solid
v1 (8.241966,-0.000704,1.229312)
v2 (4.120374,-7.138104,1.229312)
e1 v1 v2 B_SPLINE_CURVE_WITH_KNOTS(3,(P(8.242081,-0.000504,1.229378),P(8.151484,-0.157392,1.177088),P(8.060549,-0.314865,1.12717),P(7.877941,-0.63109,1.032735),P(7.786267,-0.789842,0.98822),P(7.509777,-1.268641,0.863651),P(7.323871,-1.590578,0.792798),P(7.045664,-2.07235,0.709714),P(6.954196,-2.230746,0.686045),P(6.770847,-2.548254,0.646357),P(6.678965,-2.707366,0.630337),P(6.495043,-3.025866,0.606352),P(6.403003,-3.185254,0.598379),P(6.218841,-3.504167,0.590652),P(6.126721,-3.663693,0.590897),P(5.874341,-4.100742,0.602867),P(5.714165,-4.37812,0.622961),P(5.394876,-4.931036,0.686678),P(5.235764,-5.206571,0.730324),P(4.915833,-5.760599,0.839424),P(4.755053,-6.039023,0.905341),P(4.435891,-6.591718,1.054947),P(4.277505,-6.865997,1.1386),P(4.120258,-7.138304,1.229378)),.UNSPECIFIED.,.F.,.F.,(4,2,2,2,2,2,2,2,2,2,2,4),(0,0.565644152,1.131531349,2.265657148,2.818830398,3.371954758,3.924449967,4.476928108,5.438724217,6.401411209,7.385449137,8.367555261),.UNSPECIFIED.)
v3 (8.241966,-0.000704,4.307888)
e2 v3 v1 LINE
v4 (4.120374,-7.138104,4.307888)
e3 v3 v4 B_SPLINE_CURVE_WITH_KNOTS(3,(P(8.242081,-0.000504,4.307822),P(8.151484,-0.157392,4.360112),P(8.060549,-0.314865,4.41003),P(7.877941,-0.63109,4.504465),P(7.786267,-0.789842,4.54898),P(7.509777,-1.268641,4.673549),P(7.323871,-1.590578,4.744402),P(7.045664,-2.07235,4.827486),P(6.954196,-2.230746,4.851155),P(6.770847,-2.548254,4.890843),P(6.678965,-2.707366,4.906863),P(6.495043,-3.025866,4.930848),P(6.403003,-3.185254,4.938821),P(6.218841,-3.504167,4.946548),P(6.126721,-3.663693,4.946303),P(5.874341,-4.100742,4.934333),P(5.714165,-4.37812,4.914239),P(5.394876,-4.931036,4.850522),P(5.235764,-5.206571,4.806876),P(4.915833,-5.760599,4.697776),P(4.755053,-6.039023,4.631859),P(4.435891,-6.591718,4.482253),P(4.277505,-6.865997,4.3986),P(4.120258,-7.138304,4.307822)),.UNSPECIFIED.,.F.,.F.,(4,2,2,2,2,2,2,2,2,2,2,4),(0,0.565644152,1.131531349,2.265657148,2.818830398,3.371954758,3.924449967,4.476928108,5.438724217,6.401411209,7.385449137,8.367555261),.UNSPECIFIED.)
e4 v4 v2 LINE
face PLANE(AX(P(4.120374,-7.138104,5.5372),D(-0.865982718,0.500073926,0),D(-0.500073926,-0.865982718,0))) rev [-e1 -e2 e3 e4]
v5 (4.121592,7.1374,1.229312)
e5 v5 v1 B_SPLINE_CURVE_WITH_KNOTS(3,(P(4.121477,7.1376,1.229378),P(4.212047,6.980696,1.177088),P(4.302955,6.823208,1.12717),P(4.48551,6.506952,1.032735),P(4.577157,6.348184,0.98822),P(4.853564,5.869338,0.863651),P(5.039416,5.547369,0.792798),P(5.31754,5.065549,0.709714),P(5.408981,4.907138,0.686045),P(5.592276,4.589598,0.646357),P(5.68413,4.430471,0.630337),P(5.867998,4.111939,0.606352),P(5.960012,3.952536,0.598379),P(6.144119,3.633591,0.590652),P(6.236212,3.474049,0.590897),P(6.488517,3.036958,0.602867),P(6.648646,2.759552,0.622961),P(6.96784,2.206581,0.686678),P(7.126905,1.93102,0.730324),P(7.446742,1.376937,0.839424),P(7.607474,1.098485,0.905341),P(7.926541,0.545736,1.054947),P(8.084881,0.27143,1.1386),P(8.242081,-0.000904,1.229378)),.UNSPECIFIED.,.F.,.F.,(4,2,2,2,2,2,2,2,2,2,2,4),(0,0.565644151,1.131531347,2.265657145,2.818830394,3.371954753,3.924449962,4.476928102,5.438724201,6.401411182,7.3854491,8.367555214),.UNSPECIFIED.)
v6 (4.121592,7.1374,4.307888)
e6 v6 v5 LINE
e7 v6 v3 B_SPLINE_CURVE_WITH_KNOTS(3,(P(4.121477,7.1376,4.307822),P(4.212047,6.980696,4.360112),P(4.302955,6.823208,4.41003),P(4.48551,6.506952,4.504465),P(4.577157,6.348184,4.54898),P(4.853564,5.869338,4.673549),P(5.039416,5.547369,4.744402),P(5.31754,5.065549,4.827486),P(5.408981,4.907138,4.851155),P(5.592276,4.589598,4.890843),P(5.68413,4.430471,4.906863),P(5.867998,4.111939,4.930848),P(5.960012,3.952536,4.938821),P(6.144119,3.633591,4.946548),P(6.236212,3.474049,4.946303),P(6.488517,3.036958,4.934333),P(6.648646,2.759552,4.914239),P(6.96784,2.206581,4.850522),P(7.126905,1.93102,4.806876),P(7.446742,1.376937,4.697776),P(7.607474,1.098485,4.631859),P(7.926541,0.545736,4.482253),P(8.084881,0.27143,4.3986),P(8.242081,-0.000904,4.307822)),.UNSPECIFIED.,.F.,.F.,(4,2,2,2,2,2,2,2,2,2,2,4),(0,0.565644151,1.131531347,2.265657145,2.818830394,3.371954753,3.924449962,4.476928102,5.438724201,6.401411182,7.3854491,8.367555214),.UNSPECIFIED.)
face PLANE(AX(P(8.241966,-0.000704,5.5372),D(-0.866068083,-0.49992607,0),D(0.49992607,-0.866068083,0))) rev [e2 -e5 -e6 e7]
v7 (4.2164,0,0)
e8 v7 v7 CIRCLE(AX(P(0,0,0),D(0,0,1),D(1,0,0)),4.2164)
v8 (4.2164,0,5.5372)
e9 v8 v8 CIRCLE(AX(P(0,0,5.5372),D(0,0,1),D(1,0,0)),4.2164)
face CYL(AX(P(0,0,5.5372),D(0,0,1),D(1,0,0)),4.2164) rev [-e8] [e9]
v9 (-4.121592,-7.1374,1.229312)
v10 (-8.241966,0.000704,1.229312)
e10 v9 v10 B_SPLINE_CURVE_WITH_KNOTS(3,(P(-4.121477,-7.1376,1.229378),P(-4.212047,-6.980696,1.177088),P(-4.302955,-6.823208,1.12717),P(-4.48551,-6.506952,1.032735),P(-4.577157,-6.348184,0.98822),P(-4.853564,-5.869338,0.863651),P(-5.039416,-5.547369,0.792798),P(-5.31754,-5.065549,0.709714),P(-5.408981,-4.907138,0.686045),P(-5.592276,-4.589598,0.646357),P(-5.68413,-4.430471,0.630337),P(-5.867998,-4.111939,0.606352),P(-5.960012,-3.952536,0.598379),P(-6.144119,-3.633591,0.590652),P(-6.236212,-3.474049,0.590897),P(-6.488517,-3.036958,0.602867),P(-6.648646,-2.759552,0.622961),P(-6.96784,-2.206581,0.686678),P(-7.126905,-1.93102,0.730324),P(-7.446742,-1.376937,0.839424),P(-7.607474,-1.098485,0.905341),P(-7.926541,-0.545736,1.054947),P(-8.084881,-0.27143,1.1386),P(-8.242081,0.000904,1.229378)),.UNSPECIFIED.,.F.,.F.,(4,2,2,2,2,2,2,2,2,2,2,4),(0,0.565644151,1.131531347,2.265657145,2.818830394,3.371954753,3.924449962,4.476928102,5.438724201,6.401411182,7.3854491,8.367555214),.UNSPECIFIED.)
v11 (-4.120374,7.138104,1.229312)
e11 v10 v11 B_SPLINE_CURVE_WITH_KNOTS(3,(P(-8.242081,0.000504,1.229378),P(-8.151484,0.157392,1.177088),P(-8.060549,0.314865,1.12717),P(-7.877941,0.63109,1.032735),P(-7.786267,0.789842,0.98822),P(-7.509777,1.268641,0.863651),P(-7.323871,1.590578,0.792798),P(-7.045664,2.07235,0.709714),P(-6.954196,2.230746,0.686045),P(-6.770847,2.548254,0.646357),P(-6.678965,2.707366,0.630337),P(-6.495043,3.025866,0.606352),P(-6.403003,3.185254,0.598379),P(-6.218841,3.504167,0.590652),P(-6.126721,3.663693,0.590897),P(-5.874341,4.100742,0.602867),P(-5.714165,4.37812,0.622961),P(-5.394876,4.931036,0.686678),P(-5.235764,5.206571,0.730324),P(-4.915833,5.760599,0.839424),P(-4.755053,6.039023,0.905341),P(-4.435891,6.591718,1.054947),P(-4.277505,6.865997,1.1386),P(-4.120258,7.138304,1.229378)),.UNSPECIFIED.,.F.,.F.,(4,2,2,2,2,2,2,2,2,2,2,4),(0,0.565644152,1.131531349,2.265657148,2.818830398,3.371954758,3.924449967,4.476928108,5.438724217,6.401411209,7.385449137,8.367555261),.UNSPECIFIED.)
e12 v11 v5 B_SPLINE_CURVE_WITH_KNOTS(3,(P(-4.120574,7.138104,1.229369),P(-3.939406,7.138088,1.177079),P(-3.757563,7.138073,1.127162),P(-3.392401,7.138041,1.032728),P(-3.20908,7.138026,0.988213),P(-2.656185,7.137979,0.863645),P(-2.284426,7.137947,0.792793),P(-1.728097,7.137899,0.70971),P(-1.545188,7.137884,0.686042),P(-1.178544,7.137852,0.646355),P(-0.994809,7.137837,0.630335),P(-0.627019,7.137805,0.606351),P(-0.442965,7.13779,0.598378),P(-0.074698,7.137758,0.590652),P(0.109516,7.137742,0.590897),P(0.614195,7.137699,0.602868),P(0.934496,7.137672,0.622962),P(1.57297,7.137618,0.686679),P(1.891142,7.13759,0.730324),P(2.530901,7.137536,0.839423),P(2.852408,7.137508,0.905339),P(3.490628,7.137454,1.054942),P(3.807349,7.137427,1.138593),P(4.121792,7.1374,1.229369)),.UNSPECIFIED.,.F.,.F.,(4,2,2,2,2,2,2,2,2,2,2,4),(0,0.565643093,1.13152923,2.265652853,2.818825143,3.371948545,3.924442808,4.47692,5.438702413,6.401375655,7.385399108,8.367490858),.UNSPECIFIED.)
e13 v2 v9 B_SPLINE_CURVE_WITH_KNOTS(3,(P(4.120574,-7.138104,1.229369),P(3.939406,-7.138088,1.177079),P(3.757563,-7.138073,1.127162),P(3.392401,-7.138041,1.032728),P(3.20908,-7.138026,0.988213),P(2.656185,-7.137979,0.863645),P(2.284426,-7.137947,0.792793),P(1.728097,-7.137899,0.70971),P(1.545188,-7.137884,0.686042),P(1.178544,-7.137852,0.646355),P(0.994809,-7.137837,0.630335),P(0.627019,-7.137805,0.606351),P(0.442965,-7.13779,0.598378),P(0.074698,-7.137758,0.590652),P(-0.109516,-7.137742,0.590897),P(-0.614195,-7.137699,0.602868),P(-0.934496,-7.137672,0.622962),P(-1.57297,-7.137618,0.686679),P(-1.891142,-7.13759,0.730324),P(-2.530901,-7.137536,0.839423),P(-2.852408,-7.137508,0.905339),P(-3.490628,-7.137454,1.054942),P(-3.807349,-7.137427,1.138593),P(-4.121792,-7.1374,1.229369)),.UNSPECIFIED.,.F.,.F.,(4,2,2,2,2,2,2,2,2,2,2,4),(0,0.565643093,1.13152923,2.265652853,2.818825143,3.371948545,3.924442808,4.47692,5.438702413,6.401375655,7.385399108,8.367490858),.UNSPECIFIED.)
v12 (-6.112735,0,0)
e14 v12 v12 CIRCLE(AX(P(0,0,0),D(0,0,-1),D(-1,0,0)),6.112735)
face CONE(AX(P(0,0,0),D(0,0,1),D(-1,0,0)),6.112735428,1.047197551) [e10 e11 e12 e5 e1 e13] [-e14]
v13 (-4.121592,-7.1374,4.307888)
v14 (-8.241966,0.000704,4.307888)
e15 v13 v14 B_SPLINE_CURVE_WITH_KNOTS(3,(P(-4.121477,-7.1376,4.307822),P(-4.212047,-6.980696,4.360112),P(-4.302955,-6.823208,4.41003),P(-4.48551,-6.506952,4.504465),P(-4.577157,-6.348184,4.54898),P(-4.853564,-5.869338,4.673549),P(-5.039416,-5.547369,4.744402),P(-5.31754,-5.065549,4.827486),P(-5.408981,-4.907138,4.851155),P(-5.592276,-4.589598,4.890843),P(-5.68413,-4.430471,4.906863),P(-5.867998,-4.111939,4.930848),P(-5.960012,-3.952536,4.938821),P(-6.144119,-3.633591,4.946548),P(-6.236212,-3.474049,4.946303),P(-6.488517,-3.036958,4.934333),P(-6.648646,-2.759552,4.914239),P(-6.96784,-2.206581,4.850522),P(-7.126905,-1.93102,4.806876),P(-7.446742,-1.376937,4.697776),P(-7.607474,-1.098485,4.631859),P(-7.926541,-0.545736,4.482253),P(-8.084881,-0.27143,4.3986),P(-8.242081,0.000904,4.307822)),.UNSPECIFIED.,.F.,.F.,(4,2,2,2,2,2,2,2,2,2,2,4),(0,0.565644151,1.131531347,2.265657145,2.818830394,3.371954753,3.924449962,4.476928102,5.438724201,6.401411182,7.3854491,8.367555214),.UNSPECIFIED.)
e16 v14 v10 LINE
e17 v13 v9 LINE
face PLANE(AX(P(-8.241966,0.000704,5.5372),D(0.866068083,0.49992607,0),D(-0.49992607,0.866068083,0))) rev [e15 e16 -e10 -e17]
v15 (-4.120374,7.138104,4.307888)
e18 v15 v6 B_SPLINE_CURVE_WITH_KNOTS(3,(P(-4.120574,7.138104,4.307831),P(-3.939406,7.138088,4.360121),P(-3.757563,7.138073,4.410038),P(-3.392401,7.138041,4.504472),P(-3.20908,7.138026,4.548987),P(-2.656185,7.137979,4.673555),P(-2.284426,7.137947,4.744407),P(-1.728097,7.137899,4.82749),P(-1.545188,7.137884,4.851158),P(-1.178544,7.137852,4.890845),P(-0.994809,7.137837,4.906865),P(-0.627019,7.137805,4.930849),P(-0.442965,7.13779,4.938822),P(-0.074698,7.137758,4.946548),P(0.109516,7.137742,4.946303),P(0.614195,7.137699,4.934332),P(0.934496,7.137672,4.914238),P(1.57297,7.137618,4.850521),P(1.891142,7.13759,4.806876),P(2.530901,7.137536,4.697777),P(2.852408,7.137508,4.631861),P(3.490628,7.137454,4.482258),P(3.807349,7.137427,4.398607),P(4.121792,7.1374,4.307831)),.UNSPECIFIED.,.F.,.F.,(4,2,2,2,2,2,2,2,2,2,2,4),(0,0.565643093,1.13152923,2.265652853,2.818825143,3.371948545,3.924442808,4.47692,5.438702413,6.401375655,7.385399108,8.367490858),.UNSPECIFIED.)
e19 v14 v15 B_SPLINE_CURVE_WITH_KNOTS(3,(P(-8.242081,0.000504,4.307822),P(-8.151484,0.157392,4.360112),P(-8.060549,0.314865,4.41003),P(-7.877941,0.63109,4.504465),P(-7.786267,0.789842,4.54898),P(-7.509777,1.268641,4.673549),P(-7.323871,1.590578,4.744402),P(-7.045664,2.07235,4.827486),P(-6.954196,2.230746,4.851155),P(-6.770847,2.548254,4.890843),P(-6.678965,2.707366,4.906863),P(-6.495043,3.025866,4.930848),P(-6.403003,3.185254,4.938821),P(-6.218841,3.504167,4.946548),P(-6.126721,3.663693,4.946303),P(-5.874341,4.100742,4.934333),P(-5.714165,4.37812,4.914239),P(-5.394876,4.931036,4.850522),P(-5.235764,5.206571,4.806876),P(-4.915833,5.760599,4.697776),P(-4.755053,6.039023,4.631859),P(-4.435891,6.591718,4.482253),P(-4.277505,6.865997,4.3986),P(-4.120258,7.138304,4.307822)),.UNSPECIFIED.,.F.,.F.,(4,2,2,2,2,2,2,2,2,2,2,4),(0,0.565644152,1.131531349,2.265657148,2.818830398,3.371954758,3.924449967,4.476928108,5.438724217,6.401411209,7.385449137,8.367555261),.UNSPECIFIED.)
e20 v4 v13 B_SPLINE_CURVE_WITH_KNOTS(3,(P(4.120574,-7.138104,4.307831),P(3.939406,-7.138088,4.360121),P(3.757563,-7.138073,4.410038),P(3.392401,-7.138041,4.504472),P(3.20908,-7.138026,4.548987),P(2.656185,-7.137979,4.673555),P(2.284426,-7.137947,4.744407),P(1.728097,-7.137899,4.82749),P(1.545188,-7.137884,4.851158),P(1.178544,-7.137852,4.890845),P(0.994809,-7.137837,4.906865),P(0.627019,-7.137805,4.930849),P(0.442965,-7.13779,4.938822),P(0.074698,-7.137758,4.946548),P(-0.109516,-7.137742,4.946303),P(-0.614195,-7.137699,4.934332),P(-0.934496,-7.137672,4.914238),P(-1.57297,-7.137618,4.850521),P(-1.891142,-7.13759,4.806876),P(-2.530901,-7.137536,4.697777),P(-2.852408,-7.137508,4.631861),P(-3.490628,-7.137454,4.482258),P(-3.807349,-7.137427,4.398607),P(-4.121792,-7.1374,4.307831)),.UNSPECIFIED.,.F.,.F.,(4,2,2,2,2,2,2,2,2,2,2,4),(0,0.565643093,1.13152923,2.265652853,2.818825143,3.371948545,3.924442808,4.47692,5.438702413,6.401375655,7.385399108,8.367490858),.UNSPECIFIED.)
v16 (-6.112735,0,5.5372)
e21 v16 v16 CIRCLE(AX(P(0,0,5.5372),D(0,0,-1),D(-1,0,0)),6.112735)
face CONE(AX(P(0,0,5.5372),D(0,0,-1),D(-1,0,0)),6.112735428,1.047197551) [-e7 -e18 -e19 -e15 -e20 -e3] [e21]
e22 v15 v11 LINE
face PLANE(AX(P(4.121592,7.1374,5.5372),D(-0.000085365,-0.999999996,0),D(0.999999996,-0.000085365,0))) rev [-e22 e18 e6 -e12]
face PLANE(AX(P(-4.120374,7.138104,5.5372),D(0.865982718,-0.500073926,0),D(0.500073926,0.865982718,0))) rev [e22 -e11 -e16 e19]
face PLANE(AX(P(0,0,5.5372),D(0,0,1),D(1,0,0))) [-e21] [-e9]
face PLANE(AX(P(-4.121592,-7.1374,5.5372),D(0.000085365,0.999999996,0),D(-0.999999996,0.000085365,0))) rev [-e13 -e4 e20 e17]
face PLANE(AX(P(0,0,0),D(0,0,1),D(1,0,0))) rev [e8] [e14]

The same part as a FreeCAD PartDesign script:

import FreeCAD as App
import Part
import Sketcher
Q = App.Units.Quantity


def faces_at(feature, points):
    """Names of the faces that lie closest to the given points."""
    faces = feature.Shape.Faces
    near = lambda p: min(range(len(faces)), key=lambda i: faces[i].distToShape(Part.Vertex(*p))[0])
    return sorted({f"Face{near(p) + 1}" for p in points})


def add_polygon(sketch, points):
    """Adds a closed chain of lines whose ends are joined by coincident constraints."""
    first, n = sketch.GeometryCount, len(points)
    for a, b in zip(points, points[1:] + points[:1]):
        sketch.addGeometry(Part.LineSegment(App.Vector(*a, 0), App.Vector(*b, 0)), False)
    for i in range(n):
        sketch.addConstraint(Sketcher.Constraint("Coincident", first + i, 2, first + (i + 1) % n, 1))

doc = App.newDocument("Part")
params = doc.addObject("Spreadsheet::Sheet", "Params")
for row, (alias, value) in enumerate([
    ("pad1_length", "0.218 in"),
    ("pad2_length", "13.228782 mm"),
    ("draft_angle", "60 deg"),
    ("pad3_length", "13.228782 mm"),
    ("draft2_angle", "60 deg"),
    ("sketch4_diameter", "0.332 in"),
    ("hole_diameter", "0.332 in"),
    ("hole_depth", "0.96 in"),
], start=1):
    params.set(f"A{row}", alias)
    params.set(f"B{row}", "=" + value)
    params.setAlias(f"B{row}", alias)

body = doc.addObject("PartDesign::Body", "Body")

# Sketch on XY plane
sketch1 = body.newObject("Sketcher::SketchObject", "Sketch")
sketch1.AttachmentSupport = (doc.getObject("XY_Plane"), [""])
sketch1.MapMode = "FlatFace"
add_polygon(sketch1, [(4, 7), (-4, 7), (-8, 0), (-4, -7), (4, -7), (8, 0)])  # lines 0-5
sketch1.addConstraint([
    Sketcher.Constraint("Symmetric", 0, 2, 3, 2, -1, 1),
    Sketcher.Constraint("Symmetric", 1, 2, 4, 2, -1, 1),
    Sketcher.Constraint("Symmetric", 2, 2, 5, 2, -1, 1),
    Sketcher.Constraint("Equal", 0, 1),
    Sketcher.Constraint("Equal", 1, 2),
    Sketcher.Constraint("DistanceY", 2, 2, -1, 1, Q("0.281 in")),
    Sketcher.Constraint("DistanceY", 1, 2, 0, 2, Q("0.281 in")),
    Sketcher.Constraint("DistanceX", 2, 2, 0, 2, 0.001219),
    Sketcher.Constraint("DistanceX", 1, 2, 3, 2, 12.362339),
])
pad1 = body.newObject("PartDesign::Pad", "Pad")
pad1.Profile = sketch1
pad1.setExpression("Length", "Params.pad1_length")
body2 = doc.addObject("PartDesign::Body", "Body001")

# Sketch on XY plane
sketch2 = body2.newObject("Sketcher::SketchObject", "Sketch001")
sketch2.AttachmentSupport = (doc.getObject("XY_Plane001"), [""])
sketch2.MapMode = "FlatFace"
add_polygon(sketch2, [(34, 33), (34, -33), (-34, -33), (-34, 33)])  # lines 0-3
sketch2.addGeometry(Part.Circle(App.Vector(0, 0, 0), App.Vector(0, 0, 1), 6), False)  # 4
sketch2.addConstraint([
    Sketcher.Constraint("Vertical", 0),
    Sketcher.Constraint("Horizontal", 1),
    Sketcher.Constraint("Vertical", 2),
    Sketcher.Constraint("Horizontal", 3),
    Sketcher.Constraint("Coincident", 4, 3, -1, 1),
    Sketcher.Constraint("Symmetric", 0, 2, 2, 2, -1, 1),
    Sketcher.Constraint("Diameter", 4, 12.225471),
    Sketcher.Constraint("DistanceX", 1, 2, 1, 1, 68.81),
    Sketcher.Constraint("DistanceY", 0, 2, 0, 1, 66.602),
])
pad2 = body2.newObject("PartDesign::Pad", "Pad001")
pad2.Profile = sketch2
pad2.setExpression("Length", "Params.pad2_length")
doc.recompute()

draft = body2.newObject("PartDesign::Draft", "Draft")
draft.Base = (pad2, faces_at(pad2, [
    (0, -33.301, 6.614),
    (-34.405, 0, 6.614),
    (0, 33.301, 6.614),
    (34.405, 0, 6.614),
    (6.113, 0, 6.614),
]))
draft.NeutralPlane = (doc.getObject("XY_Plane001"), [""])
draft.setExpression("Angle", "Params.draft_angle")
draft.Reversed = False
doc.recompute()

boolean = body.newObject("PartDesign::Boolean", "Boolean")
boolean.Type = "Cut"
boolean.addObjects([body2])
body3 = doc.addObject("PartDesign::Body", "Body002")

# Sketch on XY plane
sketch3 = body3.newObject("Sketcher::SketchObject", "Sketch002")
sketch3.AttachmentSupport = (doc.getObject("XY_Plane002"), [""])
sketch3.MapMode = "FlatFace"
sketch3.AttachmentOffset = App.Placement(App.Vector(0, 0, 0.218 * 25.4), App.Rotation())
add_polygon(sketch3, [(34, -33), (34, 33), (-34, 33), (-34, -33)])  # lines 0-3
sketch3.addGeometry(Part.Circle(App.Vector(0, 0, 0), App.Vector(0, 0, 1), 6), False)  # 4
sketch3.addConstraint([
    Sketcher.Constraint("Vertical", 0),
    Sketcher.Constraint("Horizontal", 1),
    Sketcher.Constraint("Vertical", 2),
    Sketcher.Constraint("Horizontal", 3),
    Sketcher.Constraint("Coincident", 4, 3, -1, 1),
    Sketcher.Constraint("Symmetric", 0, 2, 2, 2, -1, 1),
    Sketcher.Constraint("Diameter", 4, 12.225471),
    Sketcher.Constraint("DistanceX", 1, 2, 1, 1, 68.81),
    Sketcher.Constraint("DistanceY", 0, 1, 0, 2, 66.602),
])
pad3 = body3.newObject("PartDesign::Pad", "Pad002")
pad3.Profile = sketch3
pad3.setExpression("Length", "Params.pad3_length")
pad3.Reversed = True
doc.recompute()

datumplane = body3.newObject("PartDesign::Plane", "DatumPlane")
datumplane.AttachmentSupport = (doc.getObject("XY_Plane002"), [""])
datumplane.MapMode = "FlatFace"
datumplane.AttachmentOffset = App.Placement(App.Vector(0, 0, 0.218 * 25.4), App.Rotation())
draft2 = body3.newObject("PartDesign::Draft", "Draft001")
draft2.Base = (pad3, faces_at(pad3, [
    (0, -33.301, -1.077),
    (-34.405, 0, -1.077),
    (0, 33.301, -1.077),
    (34.405, 0, -1.077),
    (6.113, 0, -1.077),
]))
draft2.NeutralPlane = (datumplane, [""])
draft2.setExpression("Angle", "Params.draft2_angle")
draft2.Reversed = True
doc.recompute()

boolean2 = body.newObject("PartDesign::Boolean", "Boolean001")
boolean2.Type = "Cut"
boolean2.addObjects([body3])

# Sketch on XY plane
sketch4 = body.newObject("Sketcher::SketchObject", "Sketch003")
sketch4.AttachmentSupport = (doc.getObject("XY_Plane"), [""])
sketch4.MapMode = "FlatFace"
sketch4.AttachmentOffset = App.Placement(App.Vector(0, 0, 0.218 * 25.4), App.Rotation())
sketch4.addGeometry(Part.Circle(App.Vector(0, 0, 0), App.Vector(0, 0, 1), 4.2), False)
sketch4.addConstraint([
    Sketcher.Constraint("Coincident", 0, 3, -1, 1),
    Sketcher.Constraint("Diameter", 0, Q("0.332 in")),
])
sketch4.setExpression("Constraints[1]", "Params.sketch4_diameter")
doc.recompute()
hole = body.newObject("PartDesign::Hole", "Hole")
hole.Profile = sketch4
hole.ThreadType = "None"
hole.setExpression("Diameter", "Params.hole_diameter")
hole.DepthType = "Dimension"
hole.setExpression("Depth", "Params.hole_depth")
hole.DrillPoint = "Angled"
hole.DrillPointAngle = 118

doc.recompute()
